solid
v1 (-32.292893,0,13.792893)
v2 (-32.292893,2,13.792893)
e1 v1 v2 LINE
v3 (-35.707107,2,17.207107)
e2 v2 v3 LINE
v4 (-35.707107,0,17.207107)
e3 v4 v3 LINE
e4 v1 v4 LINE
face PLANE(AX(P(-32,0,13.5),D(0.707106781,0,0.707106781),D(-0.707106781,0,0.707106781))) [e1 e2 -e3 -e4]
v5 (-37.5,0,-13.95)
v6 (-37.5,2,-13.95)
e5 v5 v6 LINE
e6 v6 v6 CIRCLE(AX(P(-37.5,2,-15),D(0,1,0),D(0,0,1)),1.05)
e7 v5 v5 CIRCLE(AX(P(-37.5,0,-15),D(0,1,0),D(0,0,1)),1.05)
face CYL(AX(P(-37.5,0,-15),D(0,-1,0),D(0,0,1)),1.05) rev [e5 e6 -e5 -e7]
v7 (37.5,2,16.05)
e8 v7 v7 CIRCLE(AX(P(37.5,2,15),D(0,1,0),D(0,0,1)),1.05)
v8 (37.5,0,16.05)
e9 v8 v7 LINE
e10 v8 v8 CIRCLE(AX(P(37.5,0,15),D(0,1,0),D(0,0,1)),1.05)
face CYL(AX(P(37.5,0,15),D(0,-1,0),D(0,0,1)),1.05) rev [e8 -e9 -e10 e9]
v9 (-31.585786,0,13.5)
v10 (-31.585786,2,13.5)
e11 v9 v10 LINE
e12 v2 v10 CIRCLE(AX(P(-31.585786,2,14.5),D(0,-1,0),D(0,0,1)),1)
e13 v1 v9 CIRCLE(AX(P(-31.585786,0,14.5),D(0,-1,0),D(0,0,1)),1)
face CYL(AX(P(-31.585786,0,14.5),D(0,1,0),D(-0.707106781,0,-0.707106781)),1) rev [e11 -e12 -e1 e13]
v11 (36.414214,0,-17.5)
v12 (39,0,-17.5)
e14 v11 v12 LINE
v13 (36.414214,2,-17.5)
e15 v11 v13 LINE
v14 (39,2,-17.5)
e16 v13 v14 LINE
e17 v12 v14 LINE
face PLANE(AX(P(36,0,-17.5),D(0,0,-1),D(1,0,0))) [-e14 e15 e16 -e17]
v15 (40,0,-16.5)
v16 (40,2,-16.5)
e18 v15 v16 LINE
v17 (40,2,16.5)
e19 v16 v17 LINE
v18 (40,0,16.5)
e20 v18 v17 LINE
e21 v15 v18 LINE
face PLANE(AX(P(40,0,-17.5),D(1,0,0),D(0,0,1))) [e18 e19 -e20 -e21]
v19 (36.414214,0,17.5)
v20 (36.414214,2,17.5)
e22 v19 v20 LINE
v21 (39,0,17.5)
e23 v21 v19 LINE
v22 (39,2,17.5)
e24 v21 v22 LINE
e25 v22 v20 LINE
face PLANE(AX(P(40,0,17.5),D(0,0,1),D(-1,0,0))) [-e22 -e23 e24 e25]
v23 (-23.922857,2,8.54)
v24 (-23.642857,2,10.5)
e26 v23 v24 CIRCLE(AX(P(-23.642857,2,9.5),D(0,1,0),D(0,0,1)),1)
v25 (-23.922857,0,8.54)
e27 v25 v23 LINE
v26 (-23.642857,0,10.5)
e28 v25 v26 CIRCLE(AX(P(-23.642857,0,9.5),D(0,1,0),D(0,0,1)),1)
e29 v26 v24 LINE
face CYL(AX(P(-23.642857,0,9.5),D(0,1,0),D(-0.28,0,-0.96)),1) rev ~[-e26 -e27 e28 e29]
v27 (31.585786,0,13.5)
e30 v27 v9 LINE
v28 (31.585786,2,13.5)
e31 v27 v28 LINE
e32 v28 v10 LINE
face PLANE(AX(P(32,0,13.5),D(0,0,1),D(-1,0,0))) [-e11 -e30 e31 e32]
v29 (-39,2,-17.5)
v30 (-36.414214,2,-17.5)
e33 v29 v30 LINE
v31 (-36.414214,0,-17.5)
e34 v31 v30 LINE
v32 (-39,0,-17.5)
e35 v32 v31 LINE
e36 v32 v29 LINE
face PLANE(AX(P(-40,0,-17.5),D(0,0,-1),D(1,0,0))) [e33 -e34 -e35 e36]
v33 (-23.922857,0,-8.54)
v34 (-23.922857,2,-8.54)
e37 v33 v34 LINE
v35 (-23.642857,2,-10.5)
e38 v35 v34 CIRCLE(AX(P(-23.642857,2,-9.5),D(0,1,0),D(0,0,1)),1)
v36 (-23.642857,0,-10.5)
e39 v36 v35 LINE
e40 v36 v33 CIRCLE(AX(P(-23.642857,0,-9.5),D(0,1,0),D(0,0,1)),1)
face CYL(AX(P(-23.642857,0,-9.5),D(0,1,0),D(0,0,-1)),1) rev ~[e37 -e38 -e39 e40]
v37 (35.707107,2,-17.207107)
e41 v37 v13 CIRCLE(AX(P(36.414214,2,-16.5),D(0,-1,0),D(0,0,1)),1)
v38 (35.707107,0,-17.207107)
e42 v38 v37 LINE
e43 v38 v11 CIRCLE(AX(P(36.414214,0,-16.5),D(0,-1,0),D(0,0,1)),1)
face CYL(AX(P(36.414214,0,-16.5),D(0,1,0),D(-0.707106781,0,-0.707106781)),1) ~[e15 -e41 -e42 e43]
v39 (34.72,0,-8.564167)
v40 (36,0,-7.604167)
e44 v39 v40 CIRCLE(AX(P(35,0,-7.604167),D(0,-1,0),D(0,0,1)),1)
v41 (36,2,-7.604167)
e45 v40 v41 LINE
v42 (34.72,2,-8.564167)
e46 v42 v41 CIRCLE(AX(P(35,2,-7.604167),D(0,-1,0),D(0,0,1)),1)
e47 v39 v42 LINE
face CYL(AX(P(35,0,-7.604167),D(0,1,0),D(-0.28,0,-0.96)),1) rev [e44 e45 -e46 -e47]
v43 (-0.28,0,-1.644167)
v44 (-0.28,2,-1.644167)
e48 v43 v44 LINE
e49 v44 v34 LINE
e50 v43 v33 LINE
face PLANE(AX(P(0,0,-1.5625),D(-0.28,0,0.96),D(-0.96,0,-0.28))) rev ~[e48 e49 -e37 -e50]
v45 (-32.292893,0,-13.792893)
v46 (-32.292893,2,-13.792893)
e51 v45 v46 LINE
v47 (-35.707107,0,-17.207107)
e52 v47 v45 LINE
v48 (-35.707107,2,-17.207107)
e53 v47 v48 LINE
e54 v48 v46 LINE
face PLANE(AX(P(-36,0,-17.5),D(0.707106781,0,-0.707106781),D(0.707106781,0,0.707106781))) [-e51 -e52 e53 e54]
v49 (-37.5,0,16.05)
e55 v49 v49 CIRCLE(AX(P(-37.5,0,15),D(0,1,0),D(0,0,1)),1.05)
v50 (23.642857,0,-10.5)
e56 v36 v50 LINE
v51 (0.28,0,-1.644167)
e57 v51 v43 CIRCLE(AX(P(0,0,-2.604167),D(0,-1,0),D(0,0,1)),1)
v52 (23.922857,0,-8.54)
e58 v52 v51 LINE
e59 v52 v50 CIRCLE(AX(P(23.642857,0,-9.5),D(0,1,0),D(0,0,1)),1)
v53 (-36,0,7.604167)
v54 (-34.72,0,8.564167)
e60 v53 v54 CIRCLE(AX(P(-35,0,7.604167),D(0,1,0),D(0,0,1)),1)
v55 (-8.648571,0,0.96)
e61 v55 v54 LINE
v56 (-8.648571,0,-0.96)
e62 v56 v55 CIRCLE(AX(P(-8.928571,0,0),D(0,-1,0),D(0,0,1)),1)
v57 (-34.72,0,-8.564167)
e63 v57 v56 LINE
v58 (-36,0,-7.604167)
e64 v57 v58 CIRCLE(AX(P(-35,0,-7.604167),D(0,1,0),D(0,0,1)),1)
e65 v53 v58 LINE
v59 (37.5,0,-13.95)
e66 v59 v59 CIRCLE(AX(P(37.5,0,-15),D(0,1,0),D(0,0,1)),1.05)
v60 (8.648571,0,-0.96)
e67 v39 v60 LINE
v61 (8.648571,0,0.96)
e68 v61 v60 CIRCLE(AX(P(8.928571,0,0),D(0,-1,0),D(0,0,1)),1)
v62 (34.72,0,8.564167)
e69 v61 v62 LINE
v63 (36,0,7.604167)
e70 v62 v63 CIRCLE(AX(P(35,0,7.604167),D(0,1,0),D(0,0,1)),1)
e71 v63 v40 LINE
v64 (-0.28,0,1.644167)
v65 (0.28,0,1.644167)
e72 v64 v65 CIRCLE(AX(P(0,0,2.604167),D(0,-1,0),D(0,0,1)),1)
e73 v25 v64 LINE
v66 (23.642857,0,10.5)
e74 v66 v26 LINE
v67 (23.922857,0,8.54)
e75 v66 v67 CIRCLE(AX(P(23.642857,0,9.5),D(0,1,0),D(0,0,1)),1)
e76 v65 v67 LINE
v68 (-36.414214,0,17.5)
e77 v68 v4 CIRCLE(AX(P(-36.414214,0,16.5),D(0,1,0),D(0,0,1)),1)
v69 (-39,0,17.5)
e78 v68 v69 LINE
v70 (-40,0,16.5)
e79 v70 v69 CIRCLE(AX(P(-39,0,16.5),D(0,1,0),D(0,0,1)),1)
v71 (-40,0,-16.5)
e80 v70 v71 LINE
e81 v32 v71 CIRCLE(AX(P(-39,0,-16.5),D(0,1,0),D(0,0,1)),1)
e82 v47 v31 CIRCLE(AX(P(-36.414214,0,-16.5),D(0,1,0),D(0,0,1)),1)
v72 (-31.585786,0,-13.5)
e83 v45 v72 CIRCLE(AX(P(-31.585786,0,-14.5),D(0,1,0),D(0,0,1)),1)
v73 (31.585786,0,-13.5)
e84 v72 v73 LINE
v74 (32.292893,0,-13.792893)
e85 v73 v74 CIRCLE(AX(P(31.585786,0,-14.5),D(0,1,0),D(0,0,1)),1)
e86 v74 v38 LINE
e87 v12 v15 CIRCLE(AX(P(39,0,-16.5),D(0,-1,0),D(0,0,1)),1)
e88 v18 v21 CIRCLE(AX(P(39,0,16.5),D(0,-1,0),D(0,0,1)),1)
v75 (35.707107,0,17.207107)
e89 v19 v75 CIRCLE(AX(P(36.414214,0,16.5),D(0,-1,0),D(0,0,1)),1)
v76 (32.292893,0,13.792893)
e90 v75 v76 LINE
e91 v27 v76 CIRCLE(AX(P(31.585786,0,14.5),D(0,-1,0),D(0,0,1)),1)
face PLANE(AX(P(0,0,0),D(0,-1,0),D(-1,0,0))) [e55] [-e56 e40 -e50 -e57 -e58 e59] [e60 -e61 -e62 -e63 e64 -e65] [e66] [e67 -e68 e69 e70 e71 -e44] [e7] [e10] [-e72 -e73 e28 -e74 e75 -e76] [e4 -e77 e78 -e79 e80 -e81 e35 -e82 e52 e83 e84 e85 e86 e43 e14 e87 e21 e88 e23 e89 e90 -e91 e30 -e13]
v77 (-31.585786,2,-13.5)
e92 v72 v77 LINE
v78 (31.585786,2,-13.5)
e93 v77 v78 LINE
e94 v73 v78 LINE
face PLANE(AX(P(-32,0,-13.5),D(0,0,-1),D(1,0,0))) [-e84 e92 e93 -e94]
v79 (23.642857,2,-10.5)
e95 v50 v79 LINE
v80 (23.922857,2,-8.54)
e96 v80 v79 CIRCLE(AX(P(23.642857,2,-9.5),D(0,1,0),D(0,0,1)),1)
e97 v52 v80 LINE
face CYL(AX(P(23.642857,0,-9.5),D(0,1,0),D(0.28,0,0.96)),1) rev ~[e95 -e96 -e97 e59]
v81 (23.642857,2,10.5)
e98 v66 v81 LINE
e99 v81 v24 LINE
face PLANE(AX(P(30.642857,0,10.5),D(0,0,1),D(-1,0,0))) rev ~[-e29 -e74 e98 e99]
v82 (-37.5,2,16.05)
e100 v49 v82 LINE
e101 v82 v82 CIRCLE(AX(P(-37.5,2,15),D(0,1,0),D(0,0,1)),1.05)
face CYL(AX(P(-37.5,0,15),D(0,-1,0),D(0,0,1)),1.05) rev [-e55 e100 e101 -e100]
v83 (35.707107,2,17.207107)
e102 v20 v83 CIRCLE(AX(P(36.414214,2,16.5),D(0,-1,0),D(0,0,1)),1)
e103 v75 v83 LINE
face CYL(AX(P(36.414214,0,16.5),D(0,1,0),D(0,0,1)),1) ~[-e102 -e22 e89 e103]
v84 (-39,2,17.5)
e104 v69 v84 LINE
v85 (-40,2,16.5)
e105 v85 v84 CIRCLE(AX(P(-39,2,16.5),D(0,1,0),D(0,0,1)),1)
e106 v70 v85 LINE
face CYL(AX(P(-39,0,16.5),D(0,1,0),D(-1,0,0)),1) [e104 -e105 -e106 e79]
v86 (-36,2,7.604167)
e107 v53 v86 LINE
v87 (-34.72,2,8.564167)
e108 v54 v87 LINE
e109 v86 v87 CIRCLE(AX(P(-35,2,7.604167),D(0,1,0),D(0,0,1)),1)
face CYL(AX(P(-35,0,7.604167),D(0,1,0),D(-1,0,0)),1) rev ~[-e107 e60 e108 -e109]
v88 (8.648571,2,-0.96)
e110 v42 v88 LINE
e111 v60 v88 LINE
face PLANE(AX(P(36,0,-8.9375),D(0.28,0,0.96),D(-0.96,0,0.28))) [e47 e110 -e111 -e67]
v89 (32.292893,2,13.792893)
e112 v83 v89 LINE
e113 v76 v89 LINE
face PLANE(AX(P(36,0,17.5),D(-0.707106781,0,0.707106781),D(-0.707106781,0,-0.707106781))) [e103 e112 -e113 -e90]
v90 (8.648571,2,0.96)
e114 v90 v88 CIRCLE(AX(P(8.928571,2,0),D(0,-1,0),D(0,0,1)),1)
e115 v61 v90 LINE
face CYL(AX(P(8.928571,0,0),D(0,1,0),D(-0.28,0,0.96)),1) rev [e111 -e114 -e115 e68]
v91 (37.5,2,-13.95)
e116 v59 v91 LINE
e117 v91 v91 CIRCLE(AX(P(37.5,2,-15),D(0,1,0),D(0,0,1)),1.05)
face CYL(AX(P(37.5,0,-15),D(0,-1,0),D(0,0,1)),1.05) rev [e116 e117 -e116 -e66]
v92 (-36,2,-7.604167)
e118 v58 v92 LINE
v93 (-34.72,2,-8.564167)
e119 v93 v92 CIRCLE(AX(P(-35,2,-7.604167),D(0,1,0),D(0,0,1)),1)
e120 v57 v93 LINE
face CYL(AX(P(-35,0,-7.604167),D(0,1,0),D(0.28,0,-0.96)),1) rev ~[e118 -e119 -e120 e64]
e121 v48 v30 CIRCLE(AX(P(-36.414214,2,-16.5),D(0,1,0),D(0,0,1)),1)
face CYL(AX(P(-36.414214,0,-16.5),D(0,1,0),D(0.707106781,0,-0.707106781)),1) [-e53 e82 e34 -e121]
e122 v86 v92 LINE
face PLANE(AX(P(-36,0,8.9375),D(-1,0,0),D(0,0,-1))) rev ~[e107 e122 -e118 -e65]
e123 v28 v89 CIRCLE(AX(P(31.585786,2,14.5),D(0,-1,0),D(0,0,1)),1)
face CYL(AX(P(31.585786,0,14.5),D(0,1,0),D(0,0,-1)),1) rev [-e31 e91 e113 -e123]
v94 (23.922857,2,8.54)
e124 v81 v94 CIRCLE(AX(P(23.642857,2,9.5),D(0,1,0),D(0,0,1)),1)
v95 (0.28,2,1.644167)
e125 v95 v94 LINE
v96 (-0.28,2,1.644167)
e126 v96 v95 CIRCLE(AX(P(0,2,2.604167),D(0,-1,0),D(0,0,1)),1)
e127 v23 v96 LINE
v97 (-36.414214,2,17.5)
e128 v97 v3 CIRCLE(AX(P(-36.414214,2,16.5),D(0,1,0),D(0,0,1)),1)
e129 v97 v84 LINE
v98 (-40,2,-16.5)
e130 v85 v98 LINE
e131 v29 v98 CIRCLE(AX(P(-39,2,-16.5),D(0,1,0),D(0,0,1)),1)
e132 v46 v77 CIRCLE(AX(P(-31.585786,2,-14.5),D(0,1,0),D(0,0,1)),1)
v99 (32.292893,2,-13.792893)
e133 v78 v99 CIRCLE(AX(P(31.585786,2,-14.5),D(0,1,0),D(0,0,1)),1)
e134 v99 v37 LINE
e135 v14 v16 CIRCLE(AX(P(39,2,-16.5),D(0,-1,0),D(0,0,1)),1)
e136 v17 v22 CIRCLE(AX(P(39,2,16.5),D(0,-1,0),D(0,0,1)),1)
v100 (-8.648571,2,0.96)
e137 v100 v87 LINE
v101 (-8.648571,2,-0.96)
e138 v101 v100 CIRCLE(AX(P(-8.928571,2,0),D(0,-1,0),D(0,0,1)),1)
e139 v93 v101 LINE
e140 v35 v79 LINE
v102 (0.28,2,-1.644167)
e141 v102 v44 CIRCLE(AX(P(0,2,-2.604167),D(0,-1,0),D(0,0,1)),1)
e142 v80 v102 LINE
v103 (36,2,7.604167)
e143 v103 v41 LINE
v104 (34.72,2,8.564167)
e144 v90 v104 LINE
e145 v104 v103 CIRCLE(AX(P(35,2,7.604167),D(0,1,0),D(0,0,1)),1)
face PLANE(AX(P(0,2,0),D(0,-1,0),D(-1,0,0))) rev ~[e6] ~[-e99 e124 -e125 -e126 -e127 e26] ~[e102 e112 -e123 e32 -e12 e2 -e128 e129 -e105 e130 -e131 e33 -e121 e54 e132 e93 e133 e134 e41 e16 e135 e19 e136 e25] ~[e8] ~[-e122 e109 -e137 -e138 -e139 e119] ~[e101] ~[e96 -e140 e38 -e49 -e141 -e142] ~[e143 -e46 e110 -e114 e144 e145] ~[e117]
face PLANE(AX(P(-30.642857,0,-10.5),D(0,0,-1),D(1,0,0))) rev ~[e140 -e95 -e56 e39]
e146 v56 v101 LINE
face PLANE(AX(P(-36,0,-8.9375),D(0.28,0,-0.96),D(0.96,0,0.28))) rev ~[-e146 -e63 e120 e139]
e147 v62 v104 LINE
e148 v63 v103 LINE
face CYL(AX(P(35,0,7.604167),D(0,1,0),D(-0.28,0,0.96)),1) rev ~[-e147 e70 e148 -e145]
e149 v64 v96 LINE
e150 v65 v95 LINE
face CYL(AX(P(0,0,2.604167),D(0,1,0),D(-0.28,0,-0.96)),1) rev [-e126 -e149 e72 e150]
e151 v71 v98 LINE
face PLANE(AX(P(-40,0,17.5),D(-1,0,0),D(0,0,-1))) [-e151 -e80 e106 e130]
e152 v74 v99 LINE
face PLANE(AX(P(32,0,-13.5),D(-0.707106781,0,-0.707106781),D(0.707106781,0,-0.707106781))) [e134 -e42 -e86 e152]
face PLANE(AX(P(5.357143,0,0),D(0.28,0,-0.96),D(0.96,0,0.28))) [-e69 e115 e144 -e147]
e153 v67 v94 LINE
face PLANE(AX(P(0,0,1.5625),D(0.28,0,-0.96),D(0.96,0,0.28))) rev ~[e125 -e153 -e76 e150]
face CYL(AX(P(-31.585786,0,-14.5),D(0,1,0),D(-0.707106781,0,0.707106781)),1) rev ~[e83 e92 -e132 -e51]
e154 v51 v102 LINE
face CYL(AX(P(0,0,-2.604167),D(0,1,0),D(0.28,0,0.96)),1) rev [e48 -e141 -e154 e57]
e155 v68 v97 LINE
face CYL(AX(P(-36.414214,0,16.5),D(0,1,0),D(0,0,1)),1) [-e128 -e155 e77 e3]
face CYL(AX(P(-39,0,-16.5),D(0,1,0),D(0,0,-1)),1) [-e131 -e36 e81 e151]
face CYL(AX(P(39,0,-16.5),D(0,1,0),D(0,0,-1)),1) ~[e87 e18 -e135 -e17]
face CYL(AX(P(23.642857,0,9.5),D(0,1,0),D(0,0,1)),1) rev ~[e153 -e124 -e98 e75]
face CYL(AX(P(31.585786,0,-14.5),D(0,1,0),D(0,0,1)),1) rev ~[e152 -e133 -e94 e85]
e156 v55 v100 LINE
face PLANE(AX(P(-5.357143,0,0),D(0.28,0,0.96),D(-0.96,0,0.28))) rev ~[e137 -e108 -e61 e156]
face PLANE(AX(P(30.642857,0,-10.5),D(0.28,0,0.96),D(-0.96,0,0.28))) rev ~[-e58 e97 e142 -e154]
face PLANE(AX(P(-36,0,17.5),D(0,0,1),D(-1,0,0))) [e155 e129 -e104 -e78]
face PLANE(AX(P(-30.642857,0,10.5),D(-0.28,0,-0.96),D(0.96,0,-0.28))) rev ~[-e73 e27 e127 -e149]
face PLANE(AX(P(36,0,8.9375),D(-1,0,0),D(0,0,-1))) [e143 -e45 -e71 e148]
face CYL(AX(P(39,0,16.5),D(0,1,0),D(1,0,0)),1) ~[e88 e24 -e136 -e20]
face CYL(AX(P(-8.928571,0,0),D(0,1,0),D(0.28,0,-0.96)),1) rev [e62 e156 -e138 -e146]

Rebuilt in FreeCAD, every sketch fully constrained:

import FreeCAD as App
import Part
import Sketcher

V = App.Vector


def edges_at(feature, points):
    """Names of the edges that pass closest to the given points."""
    edges = feature.Shape.Edges
    near = lambda p: min(range(len(edges)), key=lambda i: edges[i].distToShape(Part.Vertex(*p))[0])
    return sorted({f"Edge{near(p) + 1}" for p in points})


def add_polygon(sketch, points):
    """Adds a closed chain of lines whose ends are joined by coincident constraints."""
    first, n = sketch.GeometryCount, len(points)
    for a, b in zip(points, points[1:] + points[:1]):
        sketch.addGeometry(Part.LineSegment(App.Vector(*a, 0), App.Vector(*b, 0)), False)
    for i in range(n):
        sketch.addConstraint(Sketcher.Constraint("Coincident", first + i, 2, first + (i + 1) % n, 1))

doc = App.newDocument("Part")
body = doc.addObject("PartDesign::Body", "Body")

# Sketch on XZ plane
sketch1 = body.newObject("Sketcher::SketchObject", "Sketch")
sketch1.AttachmentSupport = (doc.getObject("XZ_Plane"), [""])
sketch1.MapMode = "FlatFace"
add_polygon(sketch1, [(-32, -13.5), (-36, -17.5), (-40, -17.5), (-40, 17.5), (-36, 17.5), (-32, 13.5), (32, 13.5), (36, 17.5), (40, 17.5), (40, -17.5), (36, -17.5), (32, -13.5)])  # lines 0-11
sketch1.addGeometry(Part.Circle(V(37.5, 15, 0), V(0, 0, 1), 1.1), False)  # 12
sketch1.addGeometry(Part.Circle(V(-37.5, 15, 0), V(0, 0, 1), 1.1), False)  # 13
add_polygon(sketch1, [(-30.6, 10.5), (0, 1.6), (30.6, 10.5)])  # lines 14-16
add_polygon(sketch1, [(36, 8.9), (5.4, 0), (36, -8.9)])  # lines 17-19
sketch1.addGeometry(Part.Circle(V(37.5, -15, 0), V(0, 0, 1), 1.1), False)  # 20
add_polygon(sketch1, [(30.6, -10.5), (0, -1.6), (-30.6, -10.5)])  # lines 21-23
add_polygon(sketch1, [(-36, -8.9), (-5.4, 0), (-36, 8.9)])  # lines 24-26
sketch1.addGeometry(Part.Circle(V(-37.5, -15, 0), V(0, 0, 1), 1.1), False)  # 27
sketch1.addConstraint([
    Sketcher.Constraint("Horizontal", 1),
    Sketcher.Constraint("Vertical", 2),
    Sketcher.Constraint("Horizontal", 3),
    Sketcher.Constraint("Horizontal", 5),
    Sketcher.Constraint("Horizontal", 7),
    Sketcher.Constraint("Vertical", 8),
    Sketcher.Constraint("Horizontal", 9),
    Sketcher.Constraint("Horizontal", 11),
    Sketcher.Constraint("Horizontal", 16),
    Sketcher.Constraint("Vertical", 19),
    Sketcher.Constraint("Horizontal", 23),
    Sketcher.Constraint("Vertical", 26),
    Sketcher.Constraint("Equal", 12, 13),
    Sketcher.Constraint("Equal", 13, 20),
    Sketcher.Constraint("Equal", 20, 27),
    Sketcher.Constraint("Symmetric", 13, 3, 20, 3, -1, 1),
    Sketcher.Constraint("Symmetric", 12, 3, 27, 3, -1, 1),
    Sketcher.Constraint("Symmetric", 0, 2, 6, 2, -1, 1),
    Sketcher.Constraint("Symmetric", 2, 2, 8, 2, -1, 1),
    Sketcher.Constraint("Symmetric", 4, 2, 10, 2, -1, 1),
    Sketcher.Constraint("Symmetric", 14, 2, 21, 2, -1, 1),
    Sketcher.Constraint("Symmetric", 15, 2, 22, 2, -1, 1),
    Sketcher.Constraint("Symmetric", 17, 2, 24, 2, -1, 1),
    Sketcher.Constraint("Symmetric", 18, 2, 25, 2, -1, 1),
    Sketcher.Constraint("Symmetric", 12, 3, 13, 3, -2),
    Sketcher.Constraint("Symmetric", 3, 2, 6, 2, -2),
    Sketcher.Constraint("PointOnObject", 14, 2, -2),
    Sketcher.Constraint("PointOnObject", 17, 2, -1),
    Sketcher.Constraint("Perpendicular", 0, 4),
    Sketcher.Constraint("Perpendicular", 4, 6),
    Sketcher.Constraint("Perpendicular", 6, 10),
    Sketcher.Constraint("Parallel", 15, 17),
    Sketcher.Constraint("Parallel", 14, 18),
    Sketcher.Constraint("Parallel", 18, 21),
    Sketcher.Constraint("Parallel", 22, 24),
    Sketcher.Constraint("Horizontal", 19, 2, 25, 2),
    Sketcher.Constraint("Vertical", 5, 2, 10, 2),
    Sketcher.Constraint("Vertical", 9, 2, 18, 2),
    Sketcher.Constraint("Equal", 15, 17),
    Sketcher.Constraint("Diameter", 12, 2.1),
    Sketcher.Constraint("DistanceX", 1, 2, 1, 1, 4.0),
    Sketcher.Constraint("DistanceX", 5, 1, 5, 2, 64.0),
    Sketcher.Constraint("DistanceY", 2, 1, 2, 2, 35.0),
    Sketcher.Constraint("DistanceY", -1, 1, 12, 3, 15.0),
    Sketcher.Constraint("DistanceX", 0, 2, -1, 1, 36.0),
    Sketcher.Constraint("DistanceX", 13, 3, 12, 3, 75.0),
    Sketcher.Constraint("DistanceY", 15, 2, 5, 2, 3.0),
    Sketcher.Constraint("DistanceY", 19, 1, 19, 2, 17.875),
    Sketcher.Constraint("DistanceX", 16, 2, 16, 1, 61.285714),
])
pad1 = body.newObject("PartDesign::Pad", "Pad")
pad1.Profile = sketch1
pad1.Length = 2
pad1.Reversed = True
doc.recompute()

fillet = body.newObject("PartDesign::Fillet", "Fillet")
fillet.Base = (pad1, edges_at(pad1, [
    (-30.643, 1, 10.5),
    (30.643, 1, 10.5),
    (0, 1, 1.562),
    (36, 1, 8.938),
    (36, 1, -8.938),
    (5.357, 1, 0),
    (-36, 1, -8.938),
    (-36, 1, 8.938),
    (-5.357, 1, 0),
    (-40, 1, 17.5),
    (-40, 1, -17.5),
    (-36, 1, -17.5),
    (-32, 1, -13.5),
    (32, 1, -13.5),
    (36, 1, -17.5),
    (40, 1, -17.5),
    (40, 1, 17.5),
    (36, 1, 17.5),
    (32, 1, 13.5),
    (-32, 1, 13.5),
    (-36, 1, 17.5),
    (-30.643, 1, -10.5),
    (0, 1, -1.562),
    (30.643, 1, -10.5),
]))
fillet.Radius = 1

doc.recompute()
